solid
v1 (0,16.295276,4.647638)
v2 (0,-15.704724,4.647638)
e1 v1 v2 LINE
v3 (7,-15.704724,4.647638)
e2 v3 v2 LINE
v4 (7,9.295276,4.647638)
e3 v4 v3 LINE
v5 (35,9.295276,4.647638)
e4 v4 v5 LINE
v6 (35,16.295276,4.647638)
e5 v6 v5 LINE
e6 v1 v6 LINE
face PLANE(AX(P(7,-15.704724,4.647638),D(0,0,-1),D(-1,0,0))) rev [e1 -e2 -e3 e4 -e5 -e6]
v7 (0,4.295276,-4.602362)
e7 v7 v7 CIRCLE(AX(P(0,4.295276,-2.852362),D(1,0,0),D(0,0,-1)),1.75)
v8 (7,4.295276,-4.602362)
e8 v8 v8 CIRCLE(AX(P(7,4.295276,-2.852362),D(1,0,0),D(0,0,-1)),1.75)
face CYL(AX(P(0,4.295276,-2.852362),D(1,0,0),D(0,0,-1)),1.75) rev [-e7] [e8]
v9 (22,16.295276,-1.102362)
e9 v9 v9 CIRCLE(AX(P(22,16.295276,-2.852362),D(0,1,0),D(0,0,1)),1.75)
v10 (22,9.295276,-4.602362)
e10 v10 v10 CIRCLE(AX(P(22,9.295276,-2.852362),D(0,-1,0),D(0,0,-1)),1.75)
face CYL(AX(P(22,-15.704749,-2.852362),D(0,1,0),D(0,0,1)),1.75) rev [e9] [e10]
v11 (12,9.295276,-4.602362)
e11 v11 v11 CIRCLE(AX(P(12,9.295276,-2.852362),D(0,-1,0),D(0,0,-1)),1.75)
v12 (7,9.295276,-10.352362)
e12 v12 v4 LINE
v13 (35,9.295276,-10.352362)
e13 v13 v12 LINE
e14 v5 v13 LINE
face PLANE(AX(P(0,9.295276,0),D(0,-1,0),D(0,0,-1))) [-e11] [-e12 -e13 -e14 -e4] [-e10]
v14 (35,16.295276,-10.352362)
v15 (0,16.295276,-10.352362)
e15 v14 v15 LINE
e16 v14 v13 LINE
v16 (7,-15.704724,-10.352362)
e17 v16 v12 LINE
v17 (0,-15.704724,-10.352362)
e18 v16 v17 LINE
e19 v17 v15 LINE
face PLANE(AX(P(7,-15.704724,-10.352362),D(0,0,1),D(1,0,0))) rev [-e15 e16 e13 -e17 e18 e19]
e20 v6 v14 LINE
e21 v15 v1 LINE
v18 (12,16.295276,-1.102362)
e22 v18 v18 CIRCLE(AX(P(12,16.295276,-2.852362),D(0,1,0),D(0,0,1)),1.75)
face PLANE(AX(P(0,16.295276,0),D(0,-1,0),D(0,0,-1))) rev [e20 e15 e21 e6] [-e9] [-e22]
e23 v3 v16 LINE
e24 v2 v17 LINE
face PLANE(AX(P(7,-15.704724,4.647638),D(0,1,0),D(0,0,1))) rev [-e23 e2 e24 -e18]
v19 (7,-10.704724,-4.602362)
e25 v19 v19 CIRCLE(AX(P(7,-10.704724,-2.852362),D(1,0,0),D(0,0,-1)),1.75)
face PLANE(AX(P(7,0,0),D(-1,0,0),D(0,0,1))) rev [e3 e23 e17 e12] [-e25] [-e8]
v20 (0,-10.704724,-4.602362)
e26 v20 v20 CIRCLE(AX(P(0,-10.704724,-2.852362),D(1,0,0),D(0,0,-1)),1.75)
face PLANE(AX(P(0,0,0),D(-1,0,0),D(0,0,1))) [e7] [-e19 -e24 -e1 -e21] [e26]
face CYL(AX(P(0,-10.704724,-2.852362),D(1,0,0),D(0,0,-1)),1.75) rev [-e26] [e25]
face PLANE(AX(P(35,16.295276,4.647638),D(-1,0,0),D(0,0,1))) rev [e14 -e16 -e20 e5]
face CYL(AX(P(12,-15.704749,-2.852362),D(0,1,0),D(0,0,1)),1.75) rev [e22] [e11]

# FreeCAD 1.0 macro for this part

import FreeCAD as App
import Part
import Sketcher
from FreeCAD import Vector
Q = App.Units.Quantity

doc = App.newDocument("Part")
body = doc.addObject("PartDesign::Body", "Body")

# Sketch on YZ plane
sketch1 = body.newObject("Sketcher::SketchObject", "Sketch")
sketch1.AttachmentSupport = (doc.getObject("YZ_Plane"), [""])
sketch1.MapMode = "FlatFace"
sketch1.addGeometry([
    Part.LineSegment(Vector(9.295276, 4.647638, 0), Vector(-15.704724, 4.647638, 0)),
    Part.LineSegment(Vector(-15.704724, 4.647638, 0), Vector(-15.704724, -10.352362, 0)),
    Part.LineSegment(Vector(-15.704724, -10.352362, 0), Vector(9.295276, -10.352362, 0)),
    Part.LineSegment(Vector(9.295276, -10.352362, 0), Vector(9.295276, 4.647638, 0)),
], False)
sketch1.addConstraint([
    Sketcher.Constraint("Coincident", 0, 2, 1, 1),
    Sketcher.Constraint("Coincident", 1, 2, 2, 1),
    Sketcher.Constraint("Coincident", 2, 2, 3, 1),
    Sketcher.Constraint("Coincident", 3, 2, 0, 1),
    Sketcher.Constraint("Horizontal", 0),
    Sketcher.Constraint("Vertical", 1),
    Sketcher.Constraint("Horizontal", 2),
    Sketcher.Constraint("Vertical", 3),
    Sketcher.Constraint("DistanceX", 0, 2, 0, 1, Q("25 mm")),
    Sketcher.Constraint("DistanceY", 1, 2, 1, 1, Q("15 mm")),
    Sketcher.Constraint("DistanceY", -1, 1, 0, 2, Q("4.647638 mm")),
    Sketcher.Constraint("DistanceX", 0, 2, -1, 1, Q("15.704724 mm")),
])
pad1 = body.newObject("PartDesign::Pad", "Pad")
pad1.Profile = sketch1
pad1.Length = 7

# Sketch on YZ plane
sketch2 = body.newObject("Sketcher::SketchObject", "Sketch001")
sketch2.AttachmentSupport = (doc.getObject("YZ_Plane"), [""])
sketch2.MapMode = "FlatFace"
sketch2.AttachmentOffset = App.Placement(Vector(0, 0, 7), App.Rotation())
sketch2.addGeometry([
    Part.Circle(Vector(-10.704724, -2.852362, 0), Vector(0, 0, 1), 1.75),
    Part.Circle(Vector(4.295276, -2.852362, 0), Vector(0, 0, 1), 1.75),
], False)
sketch2.addConstraint([
    Sketcher.Constraint("Equal", 0, 1),
    Sketcher.Constraint("Horizontal", 0, 3, 1, 3),
    Sketcher.Constraint("Diameter", 0, Q("3.5 mm")),
    Sketcher.Constraint("DistanceX", 0, 3, 1, 3, Q("15 mm")),
    Sketcher.Constraint("DistanceY", 0, 3, -1, 1, Q("2.852362 mm")),
    Sketcher.Constraint("DistanceX", 0, 3, -1, 1, Q("10.704724 mm")),
])
pocket1 = body.newObject("PartDesign::Pocket", "Pocket")
pocket1.Profile = sketch2
pocket1.Type = "ThroughAll"

# Sketch on XZ plane
sketch3 = body.newObject("Sketcher::SketchObject", "Sketch002")
sketch3.AttachmentSupport = (doc.getObject("XZ_Plane"), [""])
sketch3.MapMode = "FlatFace"
sketch3.AttachmentOffset = App.Placement(Vector(0, 0, -9.295276), App.Rotation())
sketch3.addGeometry([
    Part.LineSegment(Vector(0, -10.352362, 0), Vector(0, 4.647638, 0)),
    Part.LineSegment(Vector(0, 4.647638, 0), Vector(35, 4.647638, 0)),
    Part.LineSegment(Vector(35, 4.647638, 0), Vector(35, -10.352362, 0)),
    Part.LineSegment(Vector(35, -10.352362, 0), Vector(0, -10.352362, 0)),
], False)
sketch3.addConstraint([
    Sketcher.Constraint("Coincident", 0, 2, 1, 1),
    Sketcher.Constraint("Coincident", 1, 2, 2, 1),
    Sketcher.Constraint("Coincident", 2, 2, 3, 1),
    Sketcher.Constraint("Coincident", 3, 2, 0, 1),
    Sketcher.Constraint("Vertical", 0),
    Sketcher.Constraint("Horizontal", 1),
    Sketcher.Constraint("Vertical", 2),
    Sketcher.Constraint("Horizontal", 3),
    Sketcher.Constraint("PointOnObject", 0, 2, -2),
    Sketcher.Constraint("DistanceX", 1, 1, 1, 2, Q("35 mm")),
    Sketcher.Constraint("DistanceY", 0, 1, 0, 2, Q("15 mm")),
    Sketcher.Constraint("DistanceY", -1, 1, 0, 2, Q("4.647638 mm")),
])
pad2 = body.newObject("PartDesign::Pad", "Pad001")
pad2.Profile = sketch3
pad2.Length = 7
pad2.Reversed = True

# Sketch on XZ plane
sketch4 = body.newObject("Sketcher::SketchObject", "Sketch003")
sketch4.AttachmentSupport = (doc.getObject("XZ_Plane"), [""])
sketch4.MapMode = "FlatFace"
sketch4.AttachmentOffset = App.Placement(Vector(0, 0, -16.295276), App.Rotation())
sketch4.addGeometry([
    Part.Circle(Vector(12, -2.852362, 0), Vector(0, 0, 1), 1.75),
    Part.Circle(Vector(22, -2.852362, 0), Vector(0, 0, 1), 1.75),
], False)
sketch4.addConstraint([
    Sketcher.Constraint("Equal", 0, 1),
    Sketcher.Constraint("Horizontal", 0, 3, 1, 3),
    Sketcher.Constraint("Diameter", 0, Q("3.5 mm")),
    Sketcher.Constraint("DistanceX", -1, 1, 0, 3, Q("12 mm")),
    Sketcher.Constraint("DistanceX", -1, 1, 1, 3, Q("22 mm")),
    Sketcher.Constraint("DistanceY", 0, 3, -1, 1, Q("2.852362 mm")),
])
pocket2 = body.newObject("PartDesign::Pocket", "Pocket001")
pocket2.Profile = sketch4
pocket2.Type = "ThroughAll"
pocket2.Reversed = True

doc.recompute()
